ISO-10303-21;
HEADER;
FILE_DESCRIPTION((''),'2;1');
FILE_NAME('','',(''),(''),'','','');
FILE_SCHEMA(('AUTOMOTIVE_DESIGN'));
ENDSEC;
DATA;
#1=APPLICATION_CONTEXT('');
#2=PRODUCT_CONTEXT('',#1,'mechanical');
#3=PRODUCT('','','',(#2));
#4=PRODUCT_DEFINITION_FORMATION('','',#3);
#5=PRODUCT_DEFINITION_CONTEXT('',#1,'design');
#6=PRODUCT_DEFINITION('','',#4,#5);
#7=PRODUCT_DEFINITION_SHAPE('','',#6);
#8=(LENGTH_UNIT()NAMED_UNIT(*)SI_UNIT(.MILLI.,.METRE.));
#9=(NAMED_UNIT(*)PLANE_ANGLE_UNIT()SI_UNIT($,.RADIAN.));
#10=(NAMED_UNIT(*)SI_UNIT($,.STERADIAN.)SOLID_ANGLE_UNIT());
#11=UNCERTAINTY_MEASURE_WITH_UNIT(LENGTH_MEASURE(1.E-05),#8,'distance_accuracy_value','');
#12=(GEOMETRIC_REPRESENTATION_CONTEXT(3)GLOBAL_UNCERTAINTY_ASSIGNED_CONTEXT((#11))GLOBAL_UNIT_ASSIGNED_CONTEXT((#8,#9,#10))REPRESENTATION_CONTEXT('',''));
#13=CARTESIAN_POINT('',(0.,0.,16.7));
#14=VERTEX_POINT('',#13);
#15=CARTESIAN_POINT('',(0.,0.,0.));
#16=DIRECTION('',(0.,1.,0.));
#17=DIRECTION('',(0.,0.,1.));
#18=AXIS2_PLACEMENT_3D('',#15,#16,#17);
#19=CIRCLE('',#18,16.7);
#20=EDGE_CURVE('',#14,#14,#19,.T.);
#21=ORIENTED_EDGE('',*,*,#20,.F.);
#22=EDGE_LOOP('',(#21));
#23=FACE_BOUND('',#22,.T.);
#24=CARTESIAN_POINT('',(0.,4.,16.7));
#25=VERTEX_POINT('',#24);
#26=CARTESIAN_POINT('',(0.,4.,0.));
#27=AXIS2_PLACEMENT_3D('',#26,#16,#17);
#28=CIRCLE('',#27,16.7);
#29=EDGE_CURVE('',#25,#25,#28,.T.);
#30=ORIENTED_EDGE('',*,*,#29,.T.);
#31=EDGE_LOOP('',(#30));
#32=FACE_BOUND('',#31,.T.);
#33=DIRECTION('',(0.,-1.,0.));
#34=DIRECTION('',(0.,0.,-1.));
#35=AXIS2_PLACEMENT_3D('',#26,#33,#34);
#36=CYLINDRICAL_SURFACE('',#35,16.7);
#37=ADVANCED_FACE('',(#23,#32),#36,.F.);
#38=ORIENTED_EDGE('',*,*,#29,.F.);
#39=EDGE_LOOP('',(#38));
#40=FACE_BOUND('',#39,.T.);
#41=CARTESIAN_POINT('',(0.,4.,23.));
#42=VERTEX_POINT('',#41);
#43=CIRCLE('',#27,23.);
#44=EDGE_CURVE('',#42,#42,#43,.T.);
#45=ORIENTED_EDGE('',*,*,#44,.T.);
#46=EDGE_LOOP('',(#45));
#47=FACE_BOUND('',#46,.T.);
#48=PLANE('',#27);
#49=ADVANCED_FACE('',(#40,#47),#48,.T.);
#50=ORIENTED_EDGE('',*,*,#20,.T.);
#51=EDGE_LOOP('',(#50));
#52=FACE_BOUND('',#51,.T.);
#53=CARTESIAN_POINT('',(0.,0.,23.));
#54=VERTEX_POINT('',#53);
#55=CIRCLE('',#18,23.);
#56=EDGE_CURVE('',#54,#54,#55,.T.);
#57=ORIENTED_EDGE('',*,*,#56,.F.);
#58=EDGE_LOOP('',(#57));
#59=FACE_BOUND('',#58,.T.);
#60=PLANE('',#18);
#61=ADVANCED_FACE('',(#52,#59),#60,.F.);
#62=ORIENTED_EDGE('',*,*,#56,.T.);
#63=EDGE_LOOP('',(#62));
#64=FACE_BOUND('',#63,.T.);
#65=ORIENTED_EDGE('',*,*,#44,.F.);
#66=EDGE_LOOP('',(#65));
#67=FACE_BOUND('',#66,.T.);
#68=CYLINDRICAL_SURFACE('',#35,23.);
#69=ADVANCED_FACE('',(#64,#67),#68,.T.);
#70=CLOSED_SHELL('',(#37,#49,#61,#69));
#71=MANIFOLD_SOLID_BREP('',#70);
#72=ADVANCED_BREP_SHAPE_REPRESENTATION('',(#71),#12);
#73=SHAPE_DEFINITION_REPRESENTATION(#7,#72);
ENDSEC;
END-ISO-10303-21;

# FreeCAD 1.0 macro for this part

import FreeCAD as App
import Part
import Sketcher
Q = App.Units.Quantity

doc = App.newDocument("Part")
body = doc.addObject("PartDesign::Body", "Body")

# Sketch on XZ plane
sketch1 = body.newObject("Sketcher::SketchObject", "Sketch")
sketch1.AttachmentSupport = (doc.getObject("XZ_Plane"), [""])
sketch1.MapMode = "FlatFace"
sketch1.addGeometry([
    Part.Circle(App.Vector(0, 0, 0), App.Vector(0, 0, 1), 23),
    Part.Circle(App.Vector(0, 0, 0), App.Vector(0, 0, 1), 17),
], False)
sketch1.addConstraint([
    Sketcher.Constraint("Coincident", 0, 3, -1, 1),
    Sketcher.Constraint("Coincident", 1, 3, -1, 1),
    Sketcher.Constraint("Diameter", 0, Q("46 mm")),
    Sketcher.Constraint("Diameter", 1, Q("33.4 mm")),
])
pad1 = body.newObject("PartDesign::Pad", "Pad")
pad1.Profile = sketch1
pad1.Length = 4
pad1.Reversed = True

doc.recompute()
